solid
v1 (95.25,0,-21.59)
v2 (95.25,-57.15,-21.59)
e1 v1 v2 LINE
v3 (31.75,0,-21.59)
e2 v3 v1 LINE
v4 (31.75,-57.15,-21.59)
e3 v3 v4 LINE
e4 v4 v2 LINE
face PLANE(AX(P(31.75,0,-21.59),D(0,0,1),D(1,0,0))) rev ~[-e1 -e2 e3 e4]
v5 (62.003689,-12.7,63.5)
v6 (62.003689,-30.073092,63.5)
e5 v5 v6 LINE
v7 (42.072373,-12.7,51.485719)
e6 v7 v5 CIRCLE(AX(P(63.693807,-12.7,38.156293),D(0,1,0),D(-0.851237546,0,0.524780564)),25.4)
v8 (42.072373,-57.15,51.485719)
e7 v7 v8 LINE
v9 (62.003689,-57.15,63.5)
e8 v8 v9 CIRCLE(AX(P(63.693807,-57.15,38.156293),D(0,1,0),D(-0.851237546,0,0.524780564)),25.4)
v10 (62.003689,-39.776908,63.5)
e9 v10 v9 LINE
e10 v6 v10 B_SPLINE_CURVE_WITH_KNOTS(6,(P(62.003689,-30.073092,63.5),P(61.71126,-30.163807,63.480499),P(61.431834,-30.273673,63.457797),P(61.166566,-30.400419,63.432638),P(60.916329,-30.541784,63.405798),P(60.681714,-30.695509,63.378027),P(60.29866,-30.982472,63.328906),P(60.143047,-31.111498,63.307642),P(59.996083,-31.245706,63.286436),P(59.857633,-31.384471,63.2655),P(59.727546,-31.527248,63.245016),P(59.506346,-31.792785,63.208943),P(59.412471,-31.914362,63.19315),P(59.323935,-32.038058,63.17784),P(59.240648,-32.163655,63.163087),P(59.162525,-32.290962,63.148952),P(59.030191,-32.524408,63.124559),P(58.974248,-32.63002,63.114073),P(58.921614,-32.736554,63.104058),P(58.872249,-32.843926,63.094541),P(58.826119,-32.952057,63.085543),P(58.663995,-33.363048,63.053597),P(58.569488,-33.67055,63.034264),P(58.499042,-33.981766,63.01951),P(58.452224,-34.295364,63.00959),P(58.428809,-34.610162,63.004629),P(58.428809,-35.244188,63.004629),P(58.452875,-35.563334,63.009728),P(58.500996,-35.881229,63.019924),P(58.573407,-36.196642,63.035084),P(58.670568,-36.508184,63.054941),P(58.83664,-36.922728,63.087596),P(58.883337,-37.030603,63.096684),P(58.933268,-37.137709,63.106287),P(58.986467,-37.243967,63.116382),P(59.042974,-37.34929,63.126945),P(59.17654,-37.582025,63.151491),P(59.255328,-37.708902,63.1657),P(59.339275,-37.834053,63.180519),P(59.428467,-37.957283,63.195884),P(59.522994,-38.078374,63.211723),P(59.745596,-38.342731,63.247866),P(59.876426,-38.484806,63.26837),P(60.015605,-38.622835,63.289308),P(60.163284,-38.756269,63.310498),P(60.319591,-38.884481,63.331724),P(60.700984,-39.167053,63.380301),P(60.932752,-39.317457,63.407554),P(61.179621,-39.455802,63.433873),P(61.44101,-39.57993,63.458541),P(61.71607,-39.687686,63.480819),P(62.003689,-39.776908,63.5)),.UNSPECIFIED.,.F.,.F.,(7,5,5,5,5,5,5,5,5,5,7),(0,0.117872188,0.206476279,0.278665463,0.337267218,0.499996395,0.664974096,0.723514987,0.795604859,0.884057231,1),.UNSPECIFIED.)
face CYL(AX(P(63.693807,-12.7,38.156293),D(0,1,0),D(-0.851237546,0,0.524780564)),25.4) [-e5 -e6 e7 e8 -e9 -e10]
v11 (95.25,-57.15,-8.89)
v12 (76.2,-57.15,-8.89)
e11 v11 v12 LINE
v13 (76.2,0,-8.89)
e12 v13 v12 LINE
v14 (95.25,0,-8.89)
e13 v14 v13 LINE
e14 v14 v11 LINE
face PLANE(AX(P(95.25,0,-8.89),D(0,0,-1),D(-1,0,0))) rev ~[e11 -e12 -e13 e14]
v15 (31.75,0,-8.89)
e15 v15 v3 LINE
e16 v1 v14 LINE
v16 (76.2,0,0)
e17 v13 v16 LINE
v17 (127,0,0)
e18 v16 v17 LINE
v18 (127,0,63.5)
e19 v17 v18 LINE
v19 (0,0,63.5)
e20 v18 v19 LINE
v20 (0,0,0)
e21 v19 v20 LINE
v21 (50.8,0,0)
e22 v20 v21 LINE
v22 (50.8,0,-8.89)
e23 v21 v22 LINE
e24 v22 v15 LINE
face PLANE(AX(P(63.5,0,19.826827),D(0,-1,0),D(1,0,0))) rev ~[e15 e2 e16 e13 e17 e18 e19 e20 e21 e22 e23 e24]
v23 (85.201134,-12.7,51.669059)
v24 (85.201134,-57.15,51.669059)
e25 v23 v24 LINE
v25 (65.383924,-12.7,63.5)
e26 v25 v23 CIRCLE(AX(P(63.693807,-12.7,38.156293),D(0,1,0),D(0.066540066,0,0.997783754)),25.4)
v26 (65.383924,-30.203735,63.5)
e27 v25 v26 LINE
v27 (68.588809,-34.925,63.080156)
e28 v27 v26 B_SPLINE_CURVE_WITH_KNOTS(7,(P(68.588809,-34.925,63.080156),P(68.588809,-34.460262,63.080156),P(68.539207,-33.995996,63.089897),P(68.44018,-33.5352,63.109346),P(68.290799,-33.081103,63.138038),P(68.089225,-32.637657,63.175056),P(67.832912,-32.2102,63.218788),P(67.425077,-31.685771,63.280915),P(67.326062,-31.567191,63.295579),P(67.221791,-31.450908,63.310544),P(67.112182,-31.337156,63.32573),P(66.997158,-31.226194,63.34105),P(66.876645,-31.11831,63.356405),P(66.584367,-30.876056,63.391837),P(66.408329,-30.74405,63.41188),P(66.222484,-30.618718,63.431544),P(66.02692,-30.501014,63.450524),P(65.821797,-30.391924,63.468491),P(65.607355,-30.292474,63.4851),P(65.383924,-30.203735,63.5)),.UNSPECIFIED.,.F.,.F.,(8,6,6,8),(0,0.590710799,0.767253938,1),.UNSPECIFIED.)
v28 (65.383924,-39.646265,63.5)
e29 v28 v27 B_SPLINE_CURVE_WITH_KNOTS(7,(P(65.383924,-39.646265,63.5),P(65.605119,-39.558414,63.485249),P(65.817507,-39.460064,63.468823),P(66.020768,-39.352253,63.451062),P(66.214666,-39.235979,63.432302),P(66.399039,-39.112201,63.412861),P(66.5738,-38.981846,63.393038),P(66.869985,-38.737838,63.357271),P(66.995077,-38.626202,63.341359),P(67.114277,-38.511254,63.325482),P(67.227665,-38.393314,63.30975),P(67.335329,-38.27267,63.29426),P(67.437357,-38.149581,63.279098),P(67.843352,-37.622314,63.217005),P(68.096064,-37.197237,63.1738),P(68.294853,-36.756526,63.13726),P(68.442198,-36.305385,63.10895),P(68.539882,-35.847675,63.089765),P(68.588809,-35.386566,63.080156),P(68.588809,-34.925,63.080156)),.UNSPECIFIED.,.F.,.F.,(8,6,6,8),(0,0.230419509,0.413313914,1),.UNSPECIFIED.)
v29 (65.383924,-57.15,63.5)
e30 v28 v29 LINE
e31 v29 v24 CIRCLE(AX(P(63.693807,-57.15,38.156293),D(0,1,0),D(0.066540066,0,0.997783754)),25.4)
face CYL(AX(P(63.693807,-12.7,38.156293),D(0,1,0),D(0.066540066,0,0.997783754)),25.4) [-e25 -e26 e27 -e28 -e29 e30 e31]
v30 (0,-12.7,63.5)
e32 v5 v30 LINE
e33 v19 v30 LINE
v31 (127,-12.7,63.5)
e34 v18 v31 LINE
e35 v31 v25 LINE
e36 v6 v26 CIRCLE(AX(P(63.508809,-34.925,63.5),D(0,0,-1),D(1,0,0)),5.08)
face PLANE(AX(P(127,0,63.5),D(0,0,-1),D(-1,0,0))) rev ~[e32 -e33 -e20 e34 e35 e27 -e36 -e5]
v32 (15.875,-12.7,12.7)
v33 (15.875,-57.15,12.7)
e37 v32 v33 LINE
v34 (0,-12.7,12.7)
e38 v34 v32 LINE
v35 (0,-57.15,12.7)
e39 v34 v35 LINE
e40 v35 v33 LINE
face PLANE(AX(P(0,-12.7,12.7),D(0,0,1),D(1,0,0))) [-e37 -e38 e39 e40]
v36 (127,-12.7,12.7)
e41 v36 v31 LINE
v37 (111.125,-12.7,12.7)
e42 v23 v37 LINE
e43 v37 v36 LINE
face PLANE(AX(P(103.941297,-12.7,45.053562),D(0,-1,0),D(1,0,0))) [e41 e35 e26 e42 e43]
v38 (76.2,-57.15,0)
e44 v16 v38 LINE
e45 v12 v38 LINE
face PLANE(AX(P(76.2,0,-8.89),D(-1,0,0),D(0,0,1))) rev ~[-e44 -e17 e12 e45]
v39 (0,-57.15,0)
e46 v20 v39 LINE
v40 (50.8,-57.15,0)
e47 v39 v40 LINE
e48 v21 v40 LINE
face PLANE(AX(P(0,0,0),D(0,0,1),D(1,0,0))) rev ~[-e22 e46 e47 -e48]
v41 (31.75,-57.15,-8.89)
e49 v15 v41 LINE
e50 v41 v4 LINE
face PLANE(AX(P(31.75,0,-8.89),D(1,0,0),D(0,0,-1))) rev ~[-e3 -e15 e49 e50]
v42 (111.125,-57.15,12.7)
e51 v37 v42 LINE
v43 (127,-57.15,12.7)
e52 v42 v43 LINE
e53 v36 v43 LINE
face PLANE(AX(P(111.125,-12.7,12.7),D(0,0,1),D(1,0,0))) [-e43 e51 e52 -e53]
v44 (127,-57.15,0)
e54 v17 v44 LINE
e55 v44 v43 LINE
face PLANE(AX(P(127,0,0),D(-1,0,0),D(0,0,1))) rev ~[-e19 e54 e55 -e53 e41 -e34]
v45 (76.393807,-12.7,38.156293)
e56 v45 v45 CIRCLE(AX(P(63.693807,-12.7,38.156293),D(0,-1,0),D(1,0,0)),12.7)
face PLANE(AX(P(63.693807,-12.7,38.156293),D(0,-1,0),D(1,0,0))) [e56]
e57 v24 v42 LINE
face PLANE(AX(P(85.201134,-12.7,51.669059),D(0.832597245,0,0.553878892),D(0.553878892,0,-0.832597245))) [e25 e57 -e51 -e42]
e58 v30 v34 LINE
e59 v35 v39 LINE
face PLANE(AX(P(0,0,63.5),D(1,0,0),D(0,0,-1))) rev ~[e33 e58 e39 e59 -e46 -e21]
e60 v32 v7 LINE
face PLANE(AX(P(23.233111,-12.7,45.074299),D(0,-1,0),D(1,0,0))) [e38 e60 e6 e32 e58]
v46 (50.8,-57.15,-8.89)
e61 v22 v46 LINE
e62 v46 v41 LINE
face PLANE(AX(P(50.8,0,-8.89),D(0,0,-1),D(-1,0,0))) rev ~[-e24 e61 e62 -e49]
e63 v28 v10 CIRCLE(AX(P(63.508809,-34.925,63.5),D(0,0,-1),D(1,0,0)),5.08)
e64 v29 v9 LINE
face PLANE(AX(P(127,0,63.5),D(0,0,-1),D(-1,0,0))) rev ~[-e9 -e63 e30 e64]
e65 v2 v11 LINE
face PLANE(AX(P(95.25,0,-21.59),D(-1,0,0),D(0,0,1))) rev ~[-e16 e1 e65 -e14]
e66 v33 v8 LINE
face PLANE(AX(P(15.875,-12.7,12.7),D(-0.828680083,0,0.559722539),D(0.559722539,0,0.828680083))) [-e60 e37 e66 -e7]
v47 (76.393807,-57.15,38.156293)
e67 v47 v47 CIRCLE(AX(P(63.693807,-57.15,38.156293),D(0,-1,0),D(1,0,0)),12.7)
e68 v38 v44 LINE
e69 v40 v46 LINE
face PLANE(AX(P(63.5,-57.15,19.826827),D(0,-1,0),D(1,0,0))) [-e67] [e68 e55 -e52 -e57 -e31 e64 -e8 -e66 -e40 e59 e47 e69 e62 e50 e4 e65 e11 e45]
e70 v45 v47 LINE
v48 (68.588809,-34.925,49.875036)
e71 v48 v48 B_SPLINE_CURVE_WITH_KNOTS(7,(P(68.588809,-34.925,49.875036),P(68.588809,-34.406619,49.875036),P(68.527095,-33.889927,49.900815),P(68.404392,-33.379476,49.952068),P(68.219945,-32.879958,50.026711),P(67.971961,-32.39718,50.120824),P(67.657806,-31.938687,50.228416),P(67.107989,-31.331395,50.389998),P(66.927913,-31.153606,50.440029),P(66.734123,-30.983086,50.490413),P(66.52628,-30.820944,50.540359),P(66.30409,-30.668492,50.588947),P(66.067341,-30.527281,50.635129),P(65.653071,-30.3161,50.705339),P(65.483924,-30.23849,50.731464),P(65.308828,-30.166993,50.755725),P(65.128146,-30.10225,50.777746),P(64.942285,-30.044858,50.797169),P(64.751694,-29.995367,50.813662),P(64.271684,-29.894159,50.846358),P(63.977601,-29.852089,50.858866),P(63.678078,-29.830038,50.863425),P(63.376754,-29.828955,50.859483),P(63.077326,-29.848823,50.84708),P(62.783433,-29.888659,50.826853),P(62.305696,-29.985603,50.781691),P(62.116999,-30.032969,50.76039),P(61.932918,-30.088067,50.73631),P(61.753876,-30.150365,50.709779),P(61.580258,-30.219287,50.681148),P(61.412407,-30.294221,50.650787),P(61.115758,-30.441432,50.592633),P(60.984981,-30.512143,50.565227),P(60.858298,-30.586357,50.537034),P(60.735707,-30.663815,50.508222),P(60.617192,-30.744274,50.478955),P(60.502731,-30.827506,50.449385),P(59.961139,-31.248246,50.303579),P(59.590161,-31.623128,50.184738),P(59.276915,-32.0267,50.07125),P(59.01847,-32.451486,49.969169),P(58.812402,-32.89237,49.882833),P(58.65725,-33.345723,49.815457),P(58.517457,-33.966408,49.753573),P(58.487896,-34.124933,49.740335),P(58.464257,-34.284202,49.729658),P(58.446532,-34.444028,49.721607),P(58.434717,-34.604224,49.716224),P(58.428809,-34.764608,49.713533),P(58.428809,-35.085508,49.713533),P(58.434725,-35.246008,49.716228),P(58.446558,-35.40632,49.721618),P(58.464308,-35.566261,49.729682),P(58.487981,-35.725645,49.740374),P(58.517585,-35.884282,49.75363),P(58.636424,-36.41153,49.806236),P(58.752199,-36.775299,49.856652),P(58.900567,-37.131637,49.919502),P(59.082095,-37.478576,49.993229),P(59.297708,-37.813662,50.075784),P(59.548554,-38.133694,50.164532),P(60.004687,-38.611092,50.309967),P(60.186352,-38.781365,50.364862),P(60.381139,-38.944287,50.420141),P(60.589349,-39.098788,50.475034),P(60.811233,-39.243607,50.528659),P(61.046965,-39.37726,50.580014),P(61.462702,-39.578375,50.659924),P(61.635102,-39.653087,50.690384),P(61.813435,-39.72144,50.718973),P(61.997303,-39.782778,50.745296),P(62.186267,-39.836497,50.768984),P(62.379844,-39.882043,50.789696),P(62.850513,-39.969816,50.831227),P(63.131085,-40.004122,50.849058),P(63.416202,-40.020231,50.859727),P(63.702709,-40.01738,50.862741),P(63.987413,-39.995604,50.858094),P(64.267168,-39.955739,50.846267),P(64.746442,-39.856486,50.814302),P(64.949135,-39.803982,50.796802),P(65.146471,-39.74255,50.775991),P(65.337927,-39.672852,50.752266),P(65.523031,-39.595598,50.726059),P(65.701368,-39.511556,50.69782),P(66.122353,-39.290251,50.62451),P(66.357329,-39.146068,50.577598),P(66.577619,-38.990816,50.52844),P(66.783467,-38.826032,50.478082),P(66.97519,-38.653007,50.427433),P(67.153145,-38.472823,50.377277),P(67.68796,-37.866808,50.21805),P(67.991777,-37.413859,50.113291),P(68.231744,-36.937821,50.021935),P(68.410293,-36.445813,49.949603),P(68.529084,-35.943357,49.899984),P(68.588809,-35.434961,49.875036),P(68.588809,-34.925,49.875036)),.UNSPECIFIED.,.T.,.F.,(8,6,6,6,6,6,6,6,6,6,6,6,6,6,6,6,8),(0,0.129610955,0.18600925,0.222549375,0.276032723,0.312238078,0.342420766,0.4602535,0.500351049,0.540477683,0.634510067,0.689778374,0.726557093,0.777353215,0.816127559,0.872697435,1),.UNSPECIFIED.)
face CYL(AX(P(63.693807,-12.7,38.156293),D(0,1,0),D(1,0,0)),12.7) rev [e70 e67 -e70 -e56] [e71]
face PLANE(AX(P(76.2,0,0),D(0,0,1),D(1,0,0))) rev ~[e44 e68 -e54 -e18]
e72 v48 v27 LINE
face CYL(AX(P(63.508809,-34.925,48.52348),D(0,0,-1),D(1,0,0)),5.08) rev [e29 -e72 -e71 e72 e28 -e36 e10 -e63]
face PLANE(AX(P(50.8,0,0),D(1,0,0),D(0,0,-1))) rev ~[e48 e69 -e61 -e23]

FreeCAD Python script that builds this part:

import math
import FreeCAD as App
import Part
import Sketcher
from FreeCAD import Vector
Q = App.Units.Quantity


def add_polygon(sketch, points):
    """Adds a closed chain of lines whose ends are joined by coincident constraints."""
    first, n = sketch.GeometryCount, len(points)
    for a, b in zip(points, points[1:] + points[:1]):
        sketch.addGeometry(Part.LineSegment(App.Vector(*a, 0), App.Vector(*b, 0)), False)
    for i in range(n):
        sketch.addConstraint(Sketcher.Constraint("Coincident", first + i, 2, first + (i + 1) % n, 1))

doc = App.newDocument("Part")
body = doc.addObject("PartDesign::Body", "Body")

# Sketch on XZ plane
sketch1 = doc.addObject("Sketcher::SketchObject", "Sketch")
body.addObject(sketch1)
sketch1.AttachmentSupport = (doc.XZ_Plane, [""])
sketch1.MapMode = "FlatFace"
add_polygon(sketch1, [(95.25, -8.89), (76.2, -8.89), (76.2, 0), (127, 0), (127, 63.5), (0, 63.5), (0, 0), (50.8, 0), (50.8, -8.89), (31.75, -8.89), (31.75, -21.59), (95.25, -21.59)])  # lines 0-11
sketch1.addConstraint([
    Sketcher.Constraint("Horizontal", 0),
    Sketcher.Constraint("Vertical", 1),
    Sketcher.Constraint("Horizontal", 2),
    Sketcher.Constraint("Vertical", 3),
    Sketcher.Constraint("Horizontal", 4),
    Sketcher.Constraint("Vertical", 5),
    Sketcher.Constraint("Horizontal", 6),
    Sketcher.Constraint("Vertical", 7),
    Sketcher.Constraint("Horizontal", 8),
    Sketcher.Constraint("Vertical", 9),
    Sketcher.Constraint("Horizontal", 10),
    Sketcher.Constraint("Vertical", 11),
    Sketcher.Constraint("Coincident", 5, 2, -1, 1),
    Sketcher.Constraint("PointOnObject", 1, 2, -1),
    Sketcher.Constraint("Horizontal", 0, 2, 7, 2),
    Sketcher.Constraint("Equal", 2, 6),
    Sketcher.Constraint("Equal", 0, 8),
    Sketcher.Constraint("Equal", 10, 3),
    Sketcher.Constraint("DistanceX", 2, 1, 2, 2, Q("2 in")),
    Sketcher.Constraint("DistanceX", 4, 2, 4, 1, Q("5 in")),
    Sketcher.Constraint("DistanceX", 10, 1, 10, 2, Q("2.5 in")),
    Sketcher.Constraint("DistanceY", 9, 2, 9, 1, Q("0.5 in")),
    Sketcher.Constraint("DistanceY", 1, 1, 1, 2, Q("0.35 in")),
])
pad1 = doc.addObject("PartDesign::Pad", "Pad")
body.addObject(pad1)
pad1.Profile = sketch1
pad1.Length = Q("2.25 in")

# Sketch on XZ plane
sketch2 = doc.addObject("Sketcher::SketchObject", "Sketch001")
body.addObject(sketch2)
sketch2.AttachmentSupport = (doc.XZ_Plane, [""])
sketch2.MapMode = "FlatFace"
sketch2.AttachmentOffset = App.Placement(Vector(0, 0, 0.5 * 25.4), App.Rotation())
sketch2.addGeometry([
    Part.LineSegment(Vector(127, 63.5, 0), Vector(65.383924, 63.5, 0)),  # 0
    Part.ArcOfCircle(Part.Circle(Vector(63.693807, 38.156293, 0), Vector(0, 0, 1), 25.4), math.radians(32.140596), math.radians(86.184716)),  # 1
    Part.LineSegment(Vector(85.201134, 51.669059, 0), Vector(111.125, 12.7, 0)),  # 2
    Part.LineSegment(Vector(111.125, 12.7, 0), Vector(127, 12.7, 0)),  # 3
    Part.LineSegment(Vector(127, 12.7, 0), Vector(127, 63.5, 0)),  # 4
    Part.ArcOfCircle(Part.Circle(Vector(63.693807, 38.156293, 0), Vector(0, 0, 1), 25.4), math.radians(86.184716), math.radians(93.815284)),  # 5
    Part.LineSegment(Vector(62.003689, 63.5, 0), Vector(65.383924, 63.5, 0)),  # 6
    Part.LineSegment(Vector(62.003689, 63.5, 0), Vector(0, 63.5, 0)),  # 7
    Part.LineSegment(Vector(0, 63.5, 0), Vector(0, 12.7, 0)),  # 8
    Part.LineSegment(Vector(0, 12.7, 0), Vector(15.875, 12.7, 0)),  # 9
    Part.LineSegment(Vector(15.875, 12.7, 0), Vector(42.072373, 51.485719, 0)),  # 10
    Part.ArcOfCircle(Part.Circle(Vector(63.693807, 38.156293, 0), Vector(0, 0, 1), 25.4), math.radians(93.815284), math.radians(148.346528)),  # 11
    Part.Circle(Vector(63.693807, 38.156293, 0), Vector(0, 0, 1), 12.7),  # 12
], False)
sketch2.addConstraint([
    Sketcher.Constraint("Coincident", 0, 2, 1, 2),
    Sketcher.Constraint("Coincident", 1, 1, 2, 1),
    Sketcher.Constraint("Coincident", 2, 2, 3, 1),
    Sketcher.Constraint("Coincident", 3, 2, 4, 1),
    Sketcher.Constraint("Coincident", 4, 2, 0, 1),
    Sketcher.Constraint("Coincident", 5, 1, 6, 2),
    Sketcher.Constraint("Coincident", 6, 1, 5, 2),
    Sketcher.Constraint("Coincident", 7, 2, 8, 1),
    Sketcher.Constraint("Coincident", 8, 2, 9, 1),
    Sketcher.Constraint("Coincident", 9, 2, 10, 1),
    Sketcher.Constraint("Coincident", 10, 2, 11, 2),
    Sketcher.Constraint("Coincident", 11, 1, 7, 1),
    Sketcher.Constraint("Horizontal", 0),
    Sketcher.Constraint("Horizontal", 3),
    Sketcher.Constraint("Vertical", 4),
    Sketcher.Constraint("Horizontal", 6),
    Sketcher.Constraint("Horizontal", 7),
    Sketcher.Constraint("Vertical", 8),
    Sketcher.Constraint("Horizontal", 9),
    Sketcher.Constraint("Coincident", 5, 3, 1, 3),
    Sketcher.Constraint("Coincident", 11, 3, 1, 3),
    Sketcher.Constraint("Coincident", 12, 3, 1, 3),
    Sketcher.Constraint("Coincident", 5, 1, 0, 2),
    Sketcher.Constraint("Coincident", 11, 1, 6, 1),
    Sketcher.Constraint("PointOnObject", 7, 2, -2),
    Sketcher.Constraint("Horizontal", 3, 2, 8, 2),
    Sketcher.Constraint("Equal", 3, 9),
    Sketcher.Constraint("Equal", 2, 10),
    Sketcher.Constraint("Diameter", 12, Q("1 in")),
    Sketcher.Constraint("Radius", 1, Q("1 in")),
    Sketcher.Constraint("DistanceY", 4, 1, 4, 2, Q("2 in")),
    Sketcher.Constraint("DistanceX", -1, 1, 3, 2, Q("5 in")),
    Sketcher.Constraint("DistanceY", -1, 1, 0, 2, Q("2.5 in")),
    Sketcher.Constraint("DistanceX", 3, 1, 3, 2, Q("0.625 in")),
    Sketcher.Constraint("DistanceX", 7, 2, 7, 1, 62.003689),
    Sketcher.Constraint("DistanceX", 0, 2, 0, 1, 61.616076),
    Sketcher.Constraint("DistanceY", -1, 1, 1, 1, 51.669059),
])
pocket1 = doc.addObject("PartDesign::Pocket", "Pocket")
body.addObject(pocket1)
pocket1.Profile = sketch2
pocket1.Length = Q("1.75 in")
pocket1.Reversed = True

# Sketch on XY plane
sketch3 = doc.addObject("Sketcher::SketchObject", "Sketch002")
body.addObject(sketch3)
sketch3.AttachmentSupport = (doc.XY_Plane, [""])
sketch3.MapMode = "FlatFace"
sketch3.AttachmentOffset = App.Placement(Vector(0, 0, 48.52348), App.Rotation())
sketch3.addGeometry(Part.Circle(Vector(63.508809, -34.925, 0), Vector(0, 0, 1), 5.08), False)
sketch3.addConstraint([
    Sketcher.Constraint("Diameter", 0, Q("0.4 in")),
    Sketcher.Constraint("DistanceY", 0, 3, -1, 1, Q("1.375 in")),
    Sketcher.Constraint("DistanceX", -1, 1, 0, 3, 63.508809),
])
pocket2 = doc.addObject("PartDesign::Pocket", "Pocket001")
body.addObject(pocket2)
pocket2.Profile = sketch3
pocket2.Length = 42.4313
pocket2.Reversed = True

doc.recompute()
